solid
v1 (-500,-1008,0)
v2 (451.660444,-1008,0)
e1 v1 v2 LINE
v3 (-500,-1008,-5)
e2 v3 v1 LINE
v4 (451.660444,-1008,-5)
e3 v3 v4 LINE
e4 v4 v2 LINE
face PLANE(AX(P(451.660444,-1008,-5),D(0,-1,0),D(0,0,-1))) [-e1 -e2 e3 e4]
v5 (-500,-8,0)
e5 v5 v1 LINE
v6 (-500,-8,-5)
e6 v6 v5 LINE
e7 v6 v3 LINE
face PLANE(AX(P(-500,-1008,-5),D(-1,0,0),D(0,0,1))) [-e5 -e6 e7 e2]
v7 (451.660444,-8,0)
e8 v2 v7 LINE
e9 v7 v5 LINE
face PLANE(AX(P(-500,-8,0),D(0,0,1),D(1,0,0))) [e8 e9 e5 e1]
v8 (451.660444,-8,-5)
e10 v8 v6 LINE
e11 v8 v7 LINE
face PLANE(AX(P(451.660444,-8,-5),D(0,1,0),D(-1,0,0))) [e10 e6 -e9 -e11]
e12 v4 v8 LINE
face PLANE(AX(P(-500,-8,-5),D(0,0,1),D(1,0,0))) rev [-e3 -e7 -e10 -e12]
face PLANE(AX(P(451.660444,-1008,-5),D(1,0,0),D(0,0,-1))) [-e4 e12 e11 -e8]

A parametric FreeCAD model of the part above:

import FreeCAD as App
import Part
import Sketcher


def add_polygon(sketch, points):
    """Adds a closed chain of lines whose ends are joined by coincident constraints."""
    first, n = sketch.GeometryCount, len(points)
    for a, b in zip(points, points[1:] + points[:1]):
        sketch.addGeometry(Part.LineSegment(App.Vector(*a, 0), App.Vector(*b, 0)), False)
    for i in range(n):
        sketch.addConstraint(Sketcher.Constraint("Coincident", first + i, 2, first + (i + 1) % n, 1))

doc = App.newDocument("Part")
body = doc.addObject("PartDesign::Body", "Body")

# Sketch on XY plane
sketch1 = doc.addObject("Sketcher::SketchObject", "Sketch")
body.addObject(sketch1)
sketch1.AttachmentSupport = (doc.XY_Plane, [""])
sketch1.MapMode = "FlatFace"
add_polygon(sketch1, [(-500, -8), (-500, -1008), (452, -1008), (452, -8)])  # lines 0-3
sketch1.addConstraint([
    Sketcher.Constraint("Vertical", 0),
    Sketcher.Constraint("Horizontal", 1),
    Sketcher.Constraint("Vertical", 2),
    Sketcher.Constraint("Horizontal", 3),
    Sketcher.Constraint("DistanceY", 0, 2, 0, 1, 1000.0),
    Sketcher.Constraint("DistanceX", 0, 2, -1, 1, 500.0),
    Sketcher.Constraint("DistanceY", 0, 2, -1, 1, 1008.0),
    Sketcher.Constraint("DistanceX", 1, 1, 1, 2, 951.660444),
])
pad1 = doc.addObject("PartDesign::Pad", "Pad")
body.addObject(pad1)
pad1.Profile = sketch1
pad1.Length = 5
pad1.Reversed = True

doc.recompute()
